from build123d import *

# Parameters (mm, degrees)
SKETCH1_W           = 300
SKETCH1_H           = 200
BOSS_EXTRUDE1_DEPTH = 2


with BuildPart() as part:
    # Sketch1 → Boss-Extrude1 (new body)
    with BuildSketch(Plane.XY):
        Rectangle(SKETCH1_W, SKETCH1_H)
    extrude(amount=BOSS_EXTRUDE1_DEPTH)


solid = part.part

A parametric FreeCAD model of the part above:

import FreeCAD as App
import Part
import Sketcher

V = App.Vector

doc = App.newDocument("Part")
body = doc.addObject("PartDesign::Body", "Body")

# Sketch on XY plane
sketch1 = body.newObject("Sketcher::SketchObject", "Sketch")
sketch1.AttachmentSupport = (doc.getObject("XY_Plane"), [""])
sketch1.MapMode = "FlatFace"
sketch1.addGeometry(Part.LineSegment(V(-150, 100, 0), V(-150, -100, 0)), False)
sketch1.addGeometry(Part.LineSegment(V(-150, -100, 0), V(150, -100, 0)), False)
sketch1.addGeometry(Part.LineSegment(V(150, -100, 0), V(150, 100, 0)), False)
sketch1.addGeometry(Part.LineSegment(V(150, 100, 0), V(-150, 100, 0)), False)
sketch1.addConstraint(Sketcher.Constraint("Coincident", 0, 2, 1, 1))
sketch1.addConstraint(Sketcher.Constraint("Coincident", 1, 2, 2, 1))
sketch1.addConstraint(Sketcher.Constraint("Coincident", 2, 2, 3, 1))
sketch1.addConstraint(Sketcher.Constraint("Coincident", 3, 2, 0, 1))
sketch1.addConstraint(Sketcher.Constraint("Vertical", 0))
sketch1.addConstraint(Sketcher.Constraint("Horizontal", 1))
sketch1.addConstraint(Sketcher.Constraint("Vertical", 2))
sketch1.addConstraint(Sketcher.Constraint("Horizontal", 3))
sketch1.addConstraint(Sketcher.Constraint("Symmetric", 0, 2, 2, 2, -1, 1))
sketch1.addConstraint(Sketcher.Constraint("DistanceX", 1, 1, 1, 2, 300.0))
sketch1.addConstraint(Sketcher.Constraint("DistanceY", 0, 2, 0, 1, 200.0))
pad1 = body.newObject("PartDesign::Pad", "Pad")
pad1.Profile = sketch1
pad1.Length = 2

doc.recompute()
